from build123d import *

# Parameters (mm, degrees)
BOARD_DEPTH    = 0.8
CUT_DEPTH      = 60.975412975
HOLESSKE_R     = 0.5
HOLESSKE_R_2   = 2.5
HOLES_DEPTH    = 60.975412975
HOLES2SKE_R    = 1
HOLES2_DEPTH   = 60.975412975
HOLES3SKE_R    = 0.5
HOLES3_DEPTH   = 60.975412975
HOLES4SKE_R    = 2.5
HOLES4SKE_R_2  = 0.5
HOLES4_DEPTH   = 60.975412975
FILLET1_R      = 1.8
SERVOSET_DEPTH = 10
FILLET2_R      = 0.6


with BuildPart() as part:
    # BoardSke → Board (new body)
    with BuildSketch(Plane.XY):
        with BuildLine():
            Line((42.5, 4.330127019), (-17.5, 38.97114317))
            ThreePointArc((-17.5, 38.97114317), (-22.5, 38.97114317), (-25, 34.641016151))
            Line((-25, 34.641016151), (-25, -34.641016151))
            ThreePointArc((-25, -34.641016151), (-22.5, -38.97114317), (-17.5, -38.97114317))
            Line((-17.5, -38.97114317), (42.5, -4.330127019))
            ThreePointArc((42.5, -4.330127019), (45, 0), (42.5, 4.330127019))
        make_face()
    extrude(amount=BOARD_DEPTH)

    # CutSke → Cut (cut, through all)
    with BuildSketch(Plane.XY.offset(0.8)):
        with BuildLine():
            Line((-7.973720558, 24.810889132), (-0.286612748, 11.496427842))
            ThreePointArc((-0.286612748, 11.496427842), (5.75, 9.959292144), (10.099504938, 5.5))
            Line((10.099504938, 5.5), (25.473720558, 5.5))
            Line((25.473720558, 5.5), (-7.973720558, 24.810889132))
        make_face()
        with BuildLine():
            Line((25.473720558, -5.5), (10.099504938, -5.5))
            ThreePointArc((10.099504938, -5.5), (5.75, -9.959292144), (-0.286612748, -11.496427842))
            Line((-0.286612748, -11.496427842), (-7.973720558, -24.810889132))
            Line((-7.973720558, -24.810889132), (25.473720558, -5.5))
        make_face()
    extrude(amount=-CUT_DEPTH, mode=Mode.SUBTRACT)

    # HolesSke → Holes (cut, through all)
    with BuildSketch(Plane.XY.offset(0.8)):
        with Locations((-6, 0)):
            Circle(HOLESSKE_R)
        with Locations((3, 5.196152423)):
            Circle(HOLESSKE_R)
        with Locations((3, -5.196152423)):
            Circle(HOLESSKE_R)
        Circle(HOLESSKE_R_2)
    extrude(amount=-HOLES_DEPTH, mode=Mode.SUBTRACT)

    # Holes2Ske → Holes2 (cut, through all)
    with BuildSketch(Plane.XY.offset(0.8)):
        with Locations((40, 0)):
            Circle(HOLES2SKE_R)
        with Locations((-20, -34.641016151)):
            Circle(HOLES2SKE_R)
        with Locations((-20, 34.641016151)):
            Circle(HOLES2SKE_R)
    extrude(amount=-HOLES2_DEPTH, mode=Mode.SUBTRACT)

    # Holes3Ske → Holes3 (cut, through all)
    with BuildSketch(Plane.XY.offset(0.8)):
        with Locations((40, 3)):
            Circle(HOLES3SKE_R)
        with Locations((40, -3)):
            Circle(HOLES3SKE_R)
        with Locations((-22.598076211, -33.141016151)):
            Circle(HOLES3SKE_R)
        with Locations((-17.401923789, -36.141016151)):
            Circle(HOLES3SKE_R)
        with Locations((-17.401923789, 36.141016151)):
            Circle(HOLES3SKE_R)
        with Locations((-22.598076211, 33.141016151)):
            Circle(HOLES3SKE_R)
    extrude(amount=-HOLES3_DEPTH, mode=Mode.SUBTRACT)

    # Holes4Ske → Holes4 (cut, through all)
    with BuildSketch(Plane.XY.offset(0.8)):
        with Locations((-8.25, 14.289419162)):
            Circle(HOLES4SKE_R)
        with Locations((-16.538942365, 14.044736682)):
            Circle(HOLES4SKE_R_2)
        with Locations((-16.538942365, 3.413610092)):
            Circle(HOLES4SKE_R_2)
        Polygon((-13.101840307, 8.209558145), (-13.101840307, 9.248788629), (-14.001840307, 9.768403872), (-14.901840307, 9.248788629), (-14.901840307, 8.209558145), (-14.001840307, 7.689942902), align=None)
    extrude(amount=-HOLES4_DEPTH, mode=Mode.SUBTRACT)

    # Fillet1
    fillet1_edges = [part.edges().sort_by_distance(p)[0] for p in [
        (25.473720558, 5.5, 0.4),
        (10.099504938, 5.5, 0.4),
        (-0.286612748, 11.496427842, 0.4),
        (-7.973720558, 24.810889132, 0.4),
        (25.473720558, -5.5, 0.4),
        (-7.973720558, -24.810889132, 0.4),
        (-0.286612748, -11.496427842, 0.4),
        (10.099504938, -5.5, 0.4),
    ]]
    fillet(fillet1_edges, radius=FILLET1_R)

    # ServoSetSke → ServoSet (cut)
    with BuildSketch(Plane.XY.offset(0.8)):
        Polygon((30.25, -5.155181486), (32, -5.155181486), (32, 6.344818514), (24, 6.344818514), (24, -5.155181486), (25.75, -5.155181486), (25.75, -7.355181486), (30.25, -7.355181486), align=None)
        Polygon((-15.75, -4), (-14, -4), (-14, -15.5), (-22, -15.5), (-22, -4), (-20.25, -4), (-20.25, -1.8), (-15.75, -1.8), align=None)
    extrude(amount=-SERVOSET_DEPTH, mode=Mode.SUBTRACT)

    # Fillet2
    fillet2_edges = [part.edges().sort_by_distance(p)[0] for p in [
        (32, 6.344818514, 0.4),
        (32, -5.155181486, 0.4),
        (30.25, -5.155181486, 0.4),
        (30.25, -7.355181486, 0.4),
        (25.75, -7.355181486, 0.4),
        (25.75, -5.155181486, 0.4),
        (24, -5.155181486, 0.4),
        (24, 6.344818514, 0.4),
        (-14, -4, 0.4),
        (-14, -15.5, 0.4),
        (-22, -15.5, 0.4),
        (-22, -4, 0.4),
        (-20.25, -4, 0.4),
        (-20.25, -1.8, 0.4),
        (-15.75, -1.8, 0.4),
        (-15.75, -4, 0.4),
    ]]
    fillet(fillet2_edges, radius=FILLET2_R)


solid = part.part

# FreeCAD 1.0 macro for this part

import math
import FreeCAD as App
import Part
import Sketcher
Q = App.Units.Quantity


def edges_at(feature, points):
    """Names of the edges that pass closest to the given points."""
    edges = feature.Shape.Edges
    near = lambda p: min(range(len(edges)), key=lambda i: edges[i].distToShape(Part.Vertex(*p))[0])
    return sorted({f"Edge{near(p) + 1}" for p in points})

doc = App.newDocument("Part")
body = doc.addObject("PartDesign::Body", "Body")

sketch1 = body.newObject("Sketcher::SketchObject", "Sketch")
sketch1.AttachmentSupport = (doc.getObject("XY_Plane"), [""])
sketch1.MapMode = "FlatFace"
sketch1.addGeometry(Part.LineSegment(App.Vector(42, 4, 0), App.Vector(-18, 39, 0)), False)
sketch1.addGeometry(Part.ArcOfCircle(Part.Circle(App.Vector(-20, 35, 0), App.Vector(0, 0, 1), 5), math.radians(60), math.radians(180)), False)
sketch1.addGeometry(Part.LineSegment(App.Vector(-25, 35, 0), App.Vector(-25, -35, 0)), False)
sketch1.addGeometry(Part.ArcOfCircle(Part.Circle(App.Vector(-20, -35, 0), App.Vector(0, 0, 1), 5), math.radians(180), math.radians(300)), False)
sketch1.addGeometry(Part.LineSegment(App.Vector(-18, -39, 0), App.Vector(42, -4, 0)), False)
sketch1.addGeometry(Part.ArcOfCircle(Part.Circle(App.Vector(40, 0, 0), App.Vector(0, 0, 1), 5), math.radians(-60), math.radians(60)), False)
sketch1.addConstraint(Sketcher.Constraint("Tangent", 0, 2, 1, 1))
sketch1.addConstraint(Sketcher.Constraint("Tangent", 1, 2, 2, 1))
sketch1.addConstraint(Sketcher.Constraint("Tangent", 2, 2, 3, 1))
sketch1.addConstraint(Sketcher.Constraint("Tangent", 3, 2, 4, 1))
sketch1.addConstraint(Sketcher.Constraint("Tangent", 4, 2, 5, 1))
sketch1.addConstraint(Sketcher.Constraint("Tangent", 5, 2, 0, 1))
sketch1.addConstraint(Sketcher.Constraint("Vertical", 2))
sketch1.addConstraint(Sketcher.Constraint("Equal", 1, 3))
sketch1.addConstraint(Sketcher.Constraint("Equal", 3, 5))
sketch1.addConstraint(Sketcher.Constraint("Symmetric", 0, 2, 3, 2, -1))
sketch1.addConstraint(Sketcher.Constraint("Radius", 1, Q("5 mm")))
sketch1.addConstraint(Sketcher.Constraint("Angle", 0, Q("150 deg")))
sketch1.addConstraint(Sketcher.Constraint("DistanceX", 1, 3, -1, 1, Q("20 mm")))
sketch1.addConstraint(Sketcher.Constraint("DistanceX", -1, 1, 5, 3, Q("40 mm")))
pad1 = body.newObject("PartDesign::Pad", "Pad")
pad1.Profile = sketch1
pad1.Length = 0.8

sketch2 = body.newObject("Sketcher::SketchObject", "Sketch001")
sketch2.AttachmentSupport = (doc.getObject("XY_Plane"), [""])
sketch2.MapMode = "FlatFace"
sketch2.AttachmentOffset = App.Placement(App.Vector(0, 0, 0.8), App.Rotation())
sketch2.addGeometry(Part.LineSegment(App.Vector(-8, 25, 0), App.Vector(0, 11, 0)), False)
sketch2.addGeometry(Part.ArcOfCircle(Part.Circle(App.Vector(0, 0, 0), App.Vector(0, 0, 1), 11), math.radians(29), math.radians(91)), False)
sketch2.addGeometry(Part.LineSegment(App.Vector(10, 6, 0), App.Vector(25, 6, 0)), False)
sketch2.addGeometry(Part.LineSegment(App.Vector(25, 6, 0), App.Vector(-8, 25, 0)), False)
sketch2.addGeometry(Part.LineSegment(App.Vector(25, -6, 0), App.Vector(10, -6, 0)), False)
sketch2.addGeometry(Part.ArcOfCircle(Part.Circle(App.Vector(0, 0, 0), App.Vector(0, 0, 1), 11), math.radians(-91), math.radians(-29)), False)
sketch2.addGeometry(Part.LineSegment(App.Vector(0, -11, 0), App.Vector(-8, -25, 0)), False)
sketch2.addGeometry(Part.LineSegment(App.Vector(-8, -25, 0), App.Vector(25, -6, 0)), False)
sketch2.addConstraint(Sketcher.Constraint("Coincident", 0, 2, 1, 2))
sketch2.addConstraint(Sketcher.Constraint("Coincident", 1, 1, 2, 1))
sketch2.addConstraint(Sketcher.Constraint("Coincident", 2, 2, 3, 1))
sketch2.addConstraint(Sketcher.Constraint("Coincident", 3, 2, 0, 1))
sketch2.addConstraint(Sketcher.Constraint("Coincident", 4, 2, 5, 2))
sketch2.addConstraint(Sketcher.Constraint("Coincident", 5, 1, 6, 1))
sketch2.addConstraint(Sketcher.Constraint("Coincident", 6, 2, 7, 1))
sketch2.addConstraint(Sketcher.Constraint("Coincident", 7, 2, 4, 1))
sketch2.addConstraint(Sketcher.Constraint("Horizontal", 2))
sketch2.addConstraint(Sketcher.Constraint("Horizontal", 4))
sketch2.addConstraint(Sketcher.Constraint("Coincident", 1, 3, -1, 1))
sketch2.addConstraint(Sketcher.Constraint("Coincident", 5, 3, -1, 1))
sketch2.addConstraint(Sketcher.Constraint("Equal", 1, 5))
sketch2.addConstraint(Sketcher.Constraint("Symmetric", 3, 2, 6, 2, -1))
sketch2.addConstraint(Sketcher.Constraint("Symmetric", 2, 2, 7, 2, -1))
sketch2.addConstraint(Sketcher.Constraint("Perpendicular", 3, 6))
sketch2.addConstraint(Sketcher.Constraint("Perpendicular", 0, 7))
sketch2.addConstraint(Sketcher.Constraint("Radius", 1, Q("11.5 mm")))
sketch2.addConstraint(Sketcher.Constraint("Angle", 0, Q("-60 deg")))
sketch2.addConstraint(Sketcher.Constraint("DistanceY", 4, 2, 1, 1, Q("11 mm")))
sketch2.addConstraint(Sketcher.Constraint("Distance", 3, Q("38.621778 mm")))
sketch2.addConstraint(Sketcher.Constraint("DistanceX", 2, 1, 2, 2, Q("15.374216 mm")))
pocket1 = body.newObject("PartDesign::Pocket", "Pocket")
pocket1.Profile = sketch2
pocket1.Type = "ThroughAll"

sketch3 = body.newObject("Sketcher::SketchObject", "Sketch002")
sketch3.AttachmentSupport = (doc.getObject("XY_Plane"), [""])
sketch3.MapMode = "FlatFace"
sketch3.AttachmentOffset = App.Placement(App.Vector(0, 0, 0.8), App.Rotation())
sketch3.addGeometry(Part.Circle(App.Vector(-6, 0, 0), App.Vector(0, 0, 1), 0.5), False)
sketch3.addGeometry(Part.Circle(App.Vector(3, 5.2, 0), App.Vector(0, 0, 1), 0.5), False)
sketch3.addGeometry(Part.Circle(App.Vector(3, -5.2, 0), App.Vector(0, 0, 1), 0.5), False)
sketch3.addGeometry(Part.Circle(App.Vector(0, 0, 0), App.Vector(0, 0, 1), 2.5), False)
sketch3.addConstraint(Sketcher.Constraint("Coincident", 3, 3, -1, 1))
sketch3.addConstraint(Sketcher.Constraint("Equal", 0, 1))
sketch3.addConstraint(Sketcher.Constraint("Equal", 1, 2))
sketch3.addConstraint(Sketcher.Constraint("Symmetric", 1, 3, 2, 3, -1))
sketch3.addConstraint(Sketcher.Constraint("PointOnObject", 0, 3, -1))
sketch3.addConstraint(Sketcher.Constraint("Diameter", 0, Q("1 mm")))
sketch3.addConstraint(Sketcher.Constraint("Diameter", 3, Q("5 mm")))
sketch3.addConstraint(Sketcher.Constraint("DistanceX", 0, 3, -1, 1, Q("6 mm")))
sketch3.addConstraint(Sketcher.Constraint("DistanceX", -1, 1, 1, 3, Q("3 mm")))
sketch3.addConstraint(Sketcher.Constraint("DistanceY", -1, 1, 1, 3, Q("5.196152 mm")))
pocket2 = body.newObject("PartDesign::Pocket", "Pocket001")
pocket2.Profile = sketch3
pocket2.Type = "ThroughAll"

sketch4 = body.newObject("Sketcher::SketchObject", "Sketch003")
sketch4.AttachmentSupport = (doc.getObject("XY_Plane"), [""])
sketch4.MapMode = "FlatFace"
sketch4.AttachmentOffset = App.Placement(App.Vector(0, 0, 0.8), App.Rotation())
sketch4.addGeometry(Part.Circle(App.Vector(40, 0, 0), App.Vector(0, 0, 1), 1), False)
sketch4.addGeometry(Part.Circle(App.Vector(-20, -34.6, 0), App.Vector(0, 0, 1), 1), False)
sketch4.addGeometry(Part.Circle(App.Vector(-20, 34.6, 0), App.Vector(0, 0, 1), 1), False)
sketch4.addConstraint(Sketcher.Constraint("Equal", 0, 1))
sketch4.addConstraint(Sketcher.Constraint("Equal", 1, 2))
sketch4.addConstraint(Sketcher.Constraint("Symmetric", 1, 3, 2, 3, -1))
sketch4.addConstraint(Sketcher.Constraint("PointOnObject", 0, 3, -1))
sketch4.addConstraint(Sketcher.Constraint("Diameter", 0, Q("2 mm")))
sketch4.addConstraint(Sketcher.Constraint("DistanceX", -1, 1, 0, 3, Q("40 mm")))
sketch4.addConstraint(Sketcher.Constraint("DistanceX", 1, 3, -1, 1, Q("20 mm")))
sketch4.addConstraint(Sketcher.Constraint("DistanceY", 1, 3, -1, 1, Q("34.641016 mm")))
pocket3 = body.newObject("PartDesign::Pocket", "Pocket002")
pocket3.Profile = sketch4
pocket3.Type = "ThroughAll"

sketch5 = body.newObject("Sketcher::SketchObject", "Sketch004")
sketch5.AttachmentSupport = (doc.getObject("XY_Plane"), [""])
sketch5.MapMode = "FlatFace"
sketch5.AttachmentOffset = App.Placement(App.Vector(0, 0, 0.8), App.Rotation())
sketch5.addGeometry(Part.Circle(App.Vector(40, 3, 0), App.Vector(0, 0, 1), 0.5), False)
sketch5.addGeometry(Part.Circle(App.Vector(40, -3, 0), App.Vector(0, 0, 1), 0.5), False)
sketch5.addGeometry(Part.Circle(App.Vector(-22.6, -33.1, 0), App.Vector(0, 0, 1), 0.5), False)
sketch5.addGeometry(Part.Circle(App.Vector(-17.4, -36.1, 0), App.Vector(0, 0, 1), 0.5), False)
sketch5.addGeometry(Part.Circle(App.Vector(-17.4, 36.1, 0), App.Vector(0, 0, 1), 0.5), False)
sketch5.addGeometry(Part.Circle(App.Vector(-22.6, 33.1, 0), App.Vector(0, 0, 1), 0.5), False)
sketch5.addConstraint(Sketcher.Constraint("Equal", 0, 1))
sketch5.addConstraint(Sketcher.Constraint("Equal", 1, 2))
sketch5.addConstraint(Sketcher.Constraint("Equal", 2, 3))
sketch5.addConstraint(Sketcher.Constraint("Equal", 3, 4))
sketch5.addConstraint(Sketcher.Constraint("Equal", 4, 5))
sketch5.addConstraint(Sketcher.Constraint("Symmetric", 0, 3, 1, 3, -1))
sketch5.addConstraint(Sketcher.Constraint("Symmetric", 3, 3, 4, 3, -1))
sketch5.addConstraint(Sketcher.Constraint("Symmetric", 2, 3, 5, 3, -1))
sketch5.addConstraint(Sketcher.Constraint("Diameter", 0, Q("1 mm")))
sketch5.addConstraint(Sketcher.Constraint("DistanceX", -1, 1, 0, 3, Q("40 mm")))
sketch5.addConstraint(Sketcher.Constraint("DistanceY", -1, 1, 0, 3, Q("3 mm")))
sketch5.addConstraint(Sketcher.Constraint("DistanceY", 3, 3, 2, 3, Q("3 mm")))
sketch5.addConstraint(Sketcher.Constraint("DistanceX", 2, 3, -1, 1, Q("22.598076 mm")))
sketch5.addConstraint(Sketcher.Constraint("DistanceY", 2, 3, -1, 1, Q("33.141016 mm")))
sketch5.addConstraint(Sketcher.Constraint("DistanceX", 3, 3, -1, 1, Q("17.401924 mm")))
pocket4 = body.newObject("PartDesign::Pocket", "Pocket003")
pocket4.Profile = sketch5
pocket4.Type = "ThroughAll"

sketch6 = body.newObject("Sketcher::SketchObject", "Sketch005")
sketch6.AttachmentSupport = (doc.getObject("XY_Plane"), [""])
sketch6.MapMode = "FlatFace"
sketch6.AttachmentOffset = App.Placement(App.Vector(0, 0, 0.8), App.Rotation())
sketch6.addGeometry(Part.Circle(App.Vector(-8.2, 14.3, 0), App.Vector(0, 0, 1), 2.5), False)
sketch6.addGeometry(Part.Circle(App.Vector(-16.5, 14, 0), App.Vector(0, 0, 1), 0.5), False)
sketch6.addGeometry(Part.Circle(App.Vector(-16.5, 3.4, 0), App.Vector(0, 0, 1), 0.5), False)
sketch6.addGeometry(Part.LineSegment(App.Vector(-13.1, 8.2, 0), App.Vector(-13.1, 9.2, 0)), False)
sketch6.addGeometry(Part.LineSegment(App.Vector(-13.1, 9.2, 0), App.Vector(-14, 9.8, 0)), False)
sketch6.addGeometry(Part.LineSegment(App.Vector(-14, 9.8, 0), App.Vector(-14.9, 9.2, 0)), False)
sketch6.addGeometry(Part.LineSegment(App.Vector(-14.9, 9.2, 0), App.Vector(-14.9, 8.2, 0)), False)
sketch6.addGeometry(Part.LineSegment(App.Vector(-14.9, 8.2, 0), App.Vector(-14, 7.7, 0)), False)
sketch6.addGeometry(Part.LineSegment(App.Vector(-14, 7.7, 0), App.Vector(-13.1, 8.2, 0)), False)
sketch6.addConstraint(Sketcher.Constraint("Coincident", 3, 2, 4, 1))
sketch6.addConstraint(Sketcher.Constraint("Coincident", 4, 2, 5, 1))
sketch6.addConstraint(Sketcher.Constraint("Coincident", 5, 2, 6, 1))
sketch6.addConstraint(Sketcher.Constraint("Coincident", 6, 2, 7, 1))
sketch6.addConstraint(Sketcher.Constraint("Coincident", 7, 2, 8, 1))
sketch6.addConstraint(Sketcher.Constraint("Coincident", 8, 2, 3, 1))
sketch6.addConstraint(Sketcher.Constraint("Vertical", 3))
sketch6.addConstraint(Sketcher.Constraint("Vertical", 6))
sketch6.addConstraint(Sketcher.Constraint("Equal", 1, 2))
sketch6.addConstraint(Sketcher.Constraint("Parallel", 4, 7))
sketch6.addConstraint(Sketcher.Constraint("Parallel", 5, 8))
sketch6.addConstraint(Sketcher.Constraint("Horizontal", 3, 2, 5, 2))
sketch6.addConstraint(Sketcher.Constraint("Horizontal", 6, 2, 8, 2))
sketch6.addConstraint(Sketcher.Constraint("Vertical", 1, 3, 2, 3))
sketch6.addConstraint(Sketcher.Constraint("Vertical", 4, 2, 7, 2))
sketch6.addConstraint(Sketcher.Constraint("Diameter", 0, Q("5 mm")))
sketch6.addConstraint(Sketcher.Constraint("Diameter", 1, Q("1 mm")))
sketch6.addConstraint(Sketcher.Constraint("Angle", 4, Q("150 deg")))
sketch6.addConstraint(Sketcher.Constraint("DistanceX", 4, 2, 3, 2, Q("0.9 mm")))
sketch6.addConstraint(Sketcher.Constraint("DistanceX", 0, 3, -1, 1, Q("8.25 mm")))
sketch6.addConstraint(Sketcher.Constraint("DistanceY", 3, 1, 3, 2, Q("1.03923 mm")))
sketch6.addConstraint(Sketcher.Constraint("DistanceY", -1, 1, 0, 3, Q("14.289419 mm")))
sketch6.addConstraint(Sketcher.Constraint("DistanceY", -1, 1, 2, 3, Q("3.41361 mm")))
sketch6.addConstraint(Sketcher.Constraint("DistanceX", 3, 2, -1, 1, Q("13.10184 mm")))
sketch6.addConstraint(Sketcher.Constraint("DistanceY", -1, 1, 3, 2, Q("9.248789 mm")))
sketch6.addConstraint(Sketcher.Constraint("DistanceY", 3, 2, 1, 3, Q("4.795948 mm")))
sketch6.addConstraint(Sketcher.Constraint("DistanceX", 1, 3, -1, 1, Q("16.538942 mm")))
pocket5 = body.newObject("PartDesign::Pocket", "Pocket004")
pocket5.Profile = sketch6
pocket5.Type = "ThroughAll"
doc.recompute()

fillet = body.newObject("PartDesign::Fillet", "Fillet")
fillet.Base = (pocket5, edges_at(pocket5, [
    (25.474, 5.5, 0.4),
    (10.1, 5.5, 0.4),
    (-0.287, 11.496, 0.4),
    (-7.974, 24.811, 0.4),
    (25.474, -5.5, 0.4),
    (-7.974, -24.811, 0.4),
    (-0.287, -11.496, 0.4),
    (10.1, -5.5, 0.4),
]))
fillet.Radius = 1.8

sketch7 = body.newObject("Sketcher::SketchObject", "Sketch006")
sketch7.AttachmentSupport = (doc.getObject("XY_Plane"), [""])
sketch7.MapMode = "FlatFace"
sketch7.AttachmentOffset = App.Placement(App.Vector(0, 0, 0.8), App.Rotation())
sketch7.addGeometry(Part.LineSegment(App.Vector(30.2, -5.2, 0), App.Vector(32, -5.2, 0)), False)
sketch7.addGeometry(Part.LineSegment(App.Vector(32, -5.2, 0), App.Vector(32, 6.3, 0)), False)
sketch7.addGeometry(Part.LineSegment(App.Vector(32, 6.3, 0), App.Vector(24, 6.3, 0)), False)
sketch7.addGeometry(Part.LineSegment(App.Vector(24, 6.3, 0), App.Vector(24, -5.2, 0)), False)
sketch7.addGeometry(Part.LineSegment(App.Vector(24, -5.2, 0), App.Vector(25.8, -5.2, 0)), False)
sketch7.addGeometry(Part.LineSegment(App.Vector(25.8, -5.2, 0), App.Vector(25.8, -7.4, 0)), False)
sketch7.addGeometry(Part.LineSegment(App.Vector(25.8, -7.4, 0), App.Vector(30.2, -7.4, 0)), False)
sketch7.addGeometry(Part.LineSegment(App.Vector(30.2, -7.4, 0), App.Vector(30.2, -5.2, 0)), False)
sketch7.addGeometry(Part.LineSegment(App.Vector(-14, -4, 0), App.Vector(-15.8, -4, 0)), False)
sketch7.addGeometry(Part.LineSegment(App.Vector(-15.8, -4, 0), App.Vector(-15.8, -1.8, 0)), False)
sketch7.addGeometry(Part.LineSegment(App.Vector(-15.8, -1.8, 0), App.Vector(-20.2, -1.8, 0)), False)
sketch7.addGeometry(Part.LineSegment(App.Vector(-20.2, -1.8, 0), App.Vector(-20.2, -4, 0)), False)
sketch7.addGeometry(Part.LineSegment(App.Vector(-20.2, -4, 0), App.Vector(-22, -4, 0)), False)
sketch7.addGeometry(Part.LineSegment(App.Vector(-22, -4, 0), App.Vector(-22, -15.5, 0)), False)
sketch7.addGeometry(Part.LineSegment(App.Vector(-22, -15.5, 0), App.Vector(-14, -15.5, 0)), False)
sketch7.addGeometry(Part.LineSegment(App.Vector(-14, -15.5, 0), App.Vector(-14, -4, 0)), False)
sketch7.addConstraint(Sketcher.Constraint("Coincident", 0, 2, 1, 1))
sketch7.addConstraint(Sketcher.Constraint("Coincident", 1, 2, 2, 1))
sketch7.addConstraint(Sketcher.Constraint("Coincident", 2, 2, 3, 1))
sketch7.addConstraint(Sketcher.Constraint("Coincident", 3, 2, 4, 1))
sketch7.addConstraint(Sketcher.Constraint("Coincident", 4, 2, 5, 1))
sketch7.addConstraint(Sketcher.Constraint("Coincident", 5, 2, 6, 1))
sketch7.addConstraint(Sketcher.Constraint("Coincident", 6, 2, 7, 1))
sketch7.addConstraint(Sketcher.Constraint("Coincident", 7, 2, 0, 1))
sketch7.addConstraint(Sketcher.Constraint("Coincident", 8, 2, 9, 1))
sketch7.addConstraint(Sketcher.Constraint("Coincident", 9, 2, 10, 1))
sketch7.addConstraint(Sketcher.Constraint("Coincident", 10, 2, 11, 1))
sketch7.addConstraint(Sketcher.Constraint("Coincident", 11, 2, 12, 1))
sketch7.addConstraint(Sketcher.Constraint("Coincident", 12, 2, 13, 1))
sketch7.addConstraint(Sketcher.Constraint("Coincident", 13, 2, 14, 1))
sketch7.addConstraint(Sketcher.Constraint("Coincident", 14, 2, 15, 1))
sketch7.addConstraint(Sketcher.Constraint("Coincident", 15, 2, 8, 1))
sketch7.addConstraint(Sketcher.Constraint("Horizontal", 0))
sketch7.addConstraint(Sketcher.Constraint("Vertical", 1))
sketch7.addConstraint(Sketcher.Constraint("Horizontal", 2))
sketch7.addConstraint(Sketcher.Constraint("Vertical", 3))
sketch7.addConstraint(Sketcher.Constraint("Horizontal", 4))
sketch7.addConstraint(Sketcher.Constraint("Vertical", 5))
sketch7.addConstraint(Sketcher.Constraint("Horizontal", 6))
sketch7.addConstraint(Sketcher.Constraint("Vertical", 7))
sketch7.addConstraint(Sketcher.Constraint("Horizontal", 8))
sketch7.addConstraint(Sketcher.Constraint("Vertical", 9))
sketch7.addConstraint(Sketcher.Constraint("Horizontal", 10))
sketch7.addConstraint(Sketcher.Constraint("Vertical", 11))
sketch7.addConstraint(Sketcher.Constraint("Horizontal", 12))
sketch7.addConstraint(Sketcher.Constraint("Vertical", 13))
sketch7.addConstraint(Sketcher.Constraint("Horizontal", 14))
sketch7.addConstraint(Sketcher.Constraint("Vertical", 15))
sketch7.addConstraint(Sketcher.Constraint("Horizontal", 0, 2, 3, 2))
sketch7.addConstraint(Sketcher.Constraint("Horizontal", 8, 2, 11, 2))
sketch7.addConstraint(Sketcher.Constraint("Equal", 0, 4))
sketch7.addConstraint(Sketcher.Constraint("Equal", 4, 8))
sketch7.addConstraint(Sketcher.Constraint("Equal", 6, 10))
sketch7.addConstraint(Sketcher.Constraint("Equal", 8, 12))
sketch7.addConstraint(Sketcher.Constraint("Equal", 7, 9))
sketch7.addConstraint(Sketcher.Constraint("Equal", 3, 13))
sketch7.addConstraint(Sketcher.Constraint("DistanceX", 2, 2, 2, 1, Q("8 mm")))
sketch7.addConstraint(Sketcher.Constraint("DistanceX", 6, 1, 6, 2, Q("4.5 mm")))
sketch7.addConstraint(Sketcher.Constraint("DistanceY", 1, 1, 1, 2, Q("11.5 mm")))
sketch7.addConstraint(Sketcher.Constraint("DistanceY", 5, 2, 5, 1, Q("2.2 mm")))
sketch7.addConstraint(Sketcher.Constraint("DistanceX", -1, 1, 0, 2, Q("32 mm")))
sketch7.addConstraint(Sketcher.Constraint("DistanceY", 8, 2, -1, 1, Q("4 mm")))
sketch7.addConstraint(Sketcher.Constraint("DistanceX", 12, 2, -1, 1, Q("22 mm")))
sketch7.addConstraint(Sketcher.Constraint("DistanceY", 0, 2, -1, 1, Q("5.155181 mm")))
pocket6 = body.newObject("PartDesign::Pocket", "Pocket005")
pocket6.Profile = sketch7
pocket6.Length = 10
doc.recompute()

fillet2 = body.newObject("PartDesign::Fillet", "Fillet001")
fillet2.Base = (pocket6, edges_at(pocket6, [
    (32, 6.345, 0.4),
    (32, -5.155, 0.4),
    (30.25, -5.155, 0.4),
    (30.25, -7.355, 0.4),
    (25.75, -7.355, 0.4),
    (25.75, -5.155, 0.4),
    (24, -5.155, 0.4),
    (24, 6.345, 0.4),
    (-14, -4, 0.4),
    (-14, -15.5, 0.4),
    (-22, -15.5, 0.4),
    (-22, -4, 0.4),
    (-20.25, -4, 0.4),
    (-20.25, -1.8, 0.4),
    (-15.75, -1.8, 0.4),
    (-15.75, -4, 0.4),
]))
fillet2.Radius = 0.6

doc.recompute()
